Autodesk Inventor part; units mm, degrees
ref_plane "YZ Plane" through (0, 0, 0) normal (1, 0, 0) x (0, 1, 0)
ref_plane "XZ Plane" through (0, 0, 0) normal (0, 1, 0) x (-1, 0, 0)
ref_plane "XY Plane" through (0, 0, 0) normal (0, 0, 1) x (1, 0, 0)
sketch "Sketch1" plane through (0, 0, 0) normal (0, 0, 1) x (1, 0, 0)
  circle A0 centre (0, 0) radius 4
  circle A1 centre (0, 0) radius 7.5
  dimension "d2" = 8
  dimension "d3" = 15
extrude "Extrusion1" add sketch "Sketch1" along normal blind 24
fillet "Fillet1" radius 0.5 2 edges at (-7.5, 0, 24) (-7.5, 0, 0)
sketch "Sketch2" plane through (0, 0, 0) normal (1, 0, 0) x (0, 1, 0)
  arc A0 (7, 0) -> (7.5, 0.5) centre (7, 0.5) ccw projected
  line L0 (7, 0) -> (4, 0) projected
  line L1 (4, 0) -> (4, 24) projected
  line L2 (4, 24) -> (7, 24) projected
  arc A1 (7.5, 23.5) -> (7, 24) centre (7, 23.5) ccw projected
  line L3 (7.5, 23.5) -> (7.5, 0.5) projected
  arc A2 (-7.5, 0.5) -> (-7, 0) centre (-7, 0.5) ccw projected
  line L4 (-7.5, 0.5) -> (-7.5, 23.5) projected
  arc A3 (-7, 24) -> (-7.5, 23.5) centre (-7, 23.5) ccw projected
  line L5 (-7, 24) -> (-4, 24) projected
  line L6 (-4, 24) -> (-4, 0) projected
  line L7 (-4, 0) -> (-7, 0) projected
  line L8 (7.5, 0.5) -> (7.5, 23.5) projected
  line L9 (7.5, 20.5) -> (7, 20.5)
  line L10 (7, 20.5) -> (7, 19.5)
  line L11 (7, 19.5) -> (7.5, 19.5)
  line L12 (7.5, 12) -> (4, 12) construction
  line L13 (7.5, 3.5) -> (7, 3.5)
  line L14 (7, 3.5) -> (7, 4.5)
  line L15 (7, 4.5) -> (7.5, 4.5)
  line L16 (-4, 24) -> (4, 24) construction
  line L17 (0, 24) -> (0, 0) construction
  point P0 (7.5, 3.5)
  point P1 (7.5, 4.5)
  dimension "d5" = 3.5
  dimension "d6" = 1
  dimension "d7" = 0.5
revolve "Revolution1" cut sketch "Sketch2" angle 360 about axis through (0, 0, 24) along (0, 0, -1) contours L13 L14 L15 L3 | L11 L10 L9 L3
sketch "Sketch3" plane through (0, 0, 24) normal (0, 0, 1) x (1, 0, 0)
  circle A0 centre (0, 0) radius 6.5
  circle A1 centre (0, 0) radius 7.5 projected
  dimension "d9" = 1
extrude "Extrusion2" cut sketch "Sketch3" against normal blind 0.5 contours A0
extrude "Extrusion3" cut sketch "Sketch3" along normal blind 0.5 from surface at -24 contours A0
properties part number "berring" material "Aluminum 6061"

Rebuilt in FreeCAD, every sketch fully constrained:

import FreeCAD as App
import Part
import Sketcher
Q = App.Units.Quantity


def edges_at(feature, points):
    """Names of the edges that pass closest to the given points."""
    edges = feature.Shape.Edges
    near = lambda p: min(range(len(edges)), key=lambda i: edges[i].distToShape(Part.Vertex(*p))[0])
    return sorted({f"Edge{near(p) + 1}" for p in points})


def add_polygon(sketch, points):
    """Adds a closed chain of lines whose ends are joined by coincident constraints."""
    first, n = sketch.GeometryCount, len(points)
    for a, b in zip(points, points[1:] + points[:1]):
        sketch.addGeometry(Part.LineSegment(App.Vector(*a, 0), App.Vector(*b, 0)), False)
    for i in range(n):
        sketch.addConstraint(Sketcher.Constraint("Coincident", first + i, 2, first + (i + 1) % n, 1))

doc = App.newDocument("Part")
body = doc.addObject("PartDesign::Body", "Body")

# Sketch on XY plane
sketch1 = body.newObject("Sketcher::SketchObject", "Sketch")
sketch1.AttachmentSupport = (doc.getObject("XY_Plane"), [""])
sketch1.MapMode = "FlatFace"
sketch1.addGeometry([
    Part.Circle(App.Vector(0, 0, 0), App.Vector(0, 0, 1), 7.5),
    Part.Circle(App.Vector(0, 0, 0), App.Vector(0, 0, 1), 4),
], False)
sketch1.addConstraint([
    Sketcher.Constraint("Coincident", 0, 3, -1, 1),
    Sketcher.Constraint("Coincident", 1, 3, -1, 1),
    Sketcher.Constraint("Diameter", 0, Q("15 mm")),
    Sketcher.Constraint("Diameter", 1, Q("8 mm")),
])
pad1 = body.newObject("PartDesign::Pad", "Pad")
pad1.Profile = sketch1
pad1.Length = 24
doc.recompute()

fillet = body.newObject("PartDesign::Fillet", "Fillet")
fillet.Base = (pad1, edges_at(pad1, [(-7.5, 0, 24), (-7.5, 0, 0)]))
fillet.Radius = 0.5

# Sketch on YZ plane
sketch2 = body.newObject("Sketcher::SketchObject", "Sketch001")
sketch2.AttachmentSupport = (doc.getObject("YZ_Plane"), [""])
sketch2.MapMode = "FlatFace"
add_polygon(sketch2, [(7, 3.5), (7.5, 3.5), (7.5, 4.5), (7, 4.5)])  # lines 0-3
add_polygon(sketch2, [(7, 19.5), (7.5, 19.5), (7.5, 20.5), (7, 20.5)])  # lines 4-7
sketch2.addConstraint([
    Sketcher.Constraint("Horizontal", 0),
    Sketcher.Constraint("Vertical", 1),
    Sketcher.Constraint("Horizontal", 2),
    Sketcher.Constraint("Vertical", 3),
    Sketcher.Constraint("Horizontal", 4),
    Sketcher.Constraint("Vertical", 5),
    Sketcher.Constraint("Horizontal", 6),
    Sketcher.Constraint("Vertical", 7),
    Sketcher.Constraint("Vertical", 1, 2, 4, 2),
    Sketcher.Constraint("Vertical", 3, 2, 6, 2),
    Sketcher.Constraint("Equal", 3, 5),
    Sketcher.Constraint("DistanceY", 1, 1, 1, 2, Q("1 mm")),
    Sketcher.Constraint("DistanceX", 0, 1, 0, 2, Q("0.5 mm")),
    Sketcher.Constraint("DistanceY", -1, 1, 0, 2, Q("3.5 mm")),
    Sketcher.Constraint("DistanceX", -1, 1, 2, 2, Q("7 mm")),
    Sketcher.Constraint("DistanceY", 1, 2, 4, 2, Q("15 mm")),
])
groove = body.newObject("PartDesign::Groove", "Groove")
groove.Profile = sketch2
groove.ReferenceAxis = (sketch2, ["V_Axis"])
groove.Angle = 360

# Sketch on XY plane
sketch3 = body.newObject("Sketcher::SketchObject", "Sketch002")
sketch3.AttachmentSupport = (doc.getObject("XY_Plane"), [""])
sketch3.MapMode = "FlatFace"
sketch3.AttachmentOffset = App.Placement(App.Vector(0, 0, 24), App.Rotation())
sketch3.addGeometry(Part.Circle(App.Vector(0, 0, 0), App.Vector(0, 0, 1), 6.5), False)
sketch3.addConstraint([
    Sketcher.Constraint("Coincident", 0, 3, -1, 1),
    Sketcher.Constraint("Diameter", 0, Q("13 mm")),
])
pocket1 = body.newObject("PartDesign::Pocket", "Pocket")
pocket1.Profile = sketch3
pocket1.Length = 0.5

# Sketch on XY plane
sketch4 = body.newObject("Sketcher::SketchObject", "Sketch003")
sketch4.AttachmentSupport = (doc.getObject("XY_Plane"), [""])
sketch4.MapMode = "FlatFace"
sketch4.addGeometry(Part.Circle(App.Vector(0, 0, 0), App.Vector(0, 0, 1), 6.5), False)
sketch4.addConstraint([
    Sketcher.Constraint("Coincident", 0, 3, -1, 1),
    Sketcher.Constraint("Diameter", 0, Q("13 mm")),
])
pocket2 = body.newObject("PartDesign::Pocket", "Pocket001")
pocket2.Profile = sketch4
pocket2.Length = 0.5
pocket2.Reversed = True

doc.recompute()
